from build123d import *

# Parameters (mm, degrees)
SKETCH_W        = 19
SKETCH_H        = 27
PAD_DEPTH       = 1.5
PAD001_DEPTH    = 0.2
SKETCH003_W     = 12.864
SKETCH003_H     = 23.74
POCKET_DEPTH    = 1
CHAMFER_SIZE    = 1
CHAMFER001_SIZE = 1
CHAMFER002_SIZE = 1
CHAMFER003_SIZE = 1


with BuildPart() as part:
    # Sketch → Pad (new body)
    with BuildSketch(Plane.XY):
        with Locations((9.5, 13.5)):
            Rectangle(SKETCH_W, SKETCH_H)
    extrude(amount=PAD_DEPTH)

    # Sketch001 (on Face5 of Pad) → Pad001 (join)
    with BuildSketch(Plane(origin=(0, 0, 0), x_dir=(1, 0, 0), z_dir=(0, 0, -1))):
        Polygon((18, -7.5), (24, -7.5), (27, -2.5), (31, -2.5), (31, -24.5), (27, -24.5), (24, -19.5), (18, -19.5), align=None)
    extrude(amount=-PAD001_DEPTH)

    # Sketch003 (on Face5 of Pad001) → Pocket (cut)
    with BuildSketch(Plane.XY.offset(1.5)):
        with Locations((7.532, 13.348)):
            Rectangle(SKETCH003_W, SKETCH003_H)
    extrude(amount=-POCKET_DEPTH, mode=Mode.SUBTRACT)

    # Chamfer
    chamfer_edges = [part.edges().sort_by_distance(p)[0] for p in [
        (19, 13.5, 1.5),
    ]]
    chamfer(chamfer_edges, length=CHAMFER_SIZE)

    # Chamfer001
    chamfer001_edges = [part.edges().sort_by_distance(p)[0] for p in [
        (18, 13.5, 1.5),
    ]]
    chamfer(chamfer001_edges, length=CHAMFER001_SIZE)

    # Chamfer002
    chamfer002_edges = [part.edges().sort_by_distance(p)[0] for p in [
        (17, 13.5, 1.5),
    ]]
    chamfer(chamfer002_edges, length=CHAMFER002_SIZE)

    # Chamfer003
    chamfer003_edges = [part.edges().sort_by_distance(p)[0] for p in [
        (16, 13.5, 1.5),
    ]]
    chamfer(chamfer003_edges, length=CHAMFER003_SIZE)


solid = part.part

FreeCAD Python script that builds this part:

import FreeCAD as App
import Part
import Sketcher


def edges_at(feature, points):
    """Names of the edges that pass closest to the given points."""
    edges = feature.Shape.Edges
    near = lambda p: min(range(len(edges)), key=lambda i: edges[i].distToShape(Part.Vertex(*p))[0])
    return sorted({f"Edge{near(p) + 1}" for p in points})

doc = App.newDocument("Part")
params = doc.addObject("Spreadsheet::Sheet", "Params")
for row, (alias, value) in enumerate([
    ("sketch1_width", "19 mm"),
    ("sketch1_height", "27 mm"),
    ("pad1_length", "1.5 mm"),
    ("sketch2_width", "6 mm"),
    ("sketch2_width2", "4 mm"),
    ("sketch2_height", "12 mm"),
    ("sketch2_height2", "22 mm"),
    ("pad2_length", "0.2 mm"),
    ("sketch3_height", "23.74 mm"),
    ("pocket1_length", "1 mm"),
    ("chamfer_size", "1 mm"),
    ("chamfer2_size", "1 mm"),
    ("chamfer3_size", "1 mm"),
    ("chamfer4_size", "1 mm"),
], start=1):
    params.set(f"A{row}", alias)
    params.set(f"B{row}", "=" + value)
    params.setAlias(f"B{row}", alias)

body = doc.addObject("PartDesign::Body", "Body")

sketch1 = body.newObject("Sketcher::SketchObject", "Sketch")
sketch1.AttachmentSupport = (doc.getObject("XY_Plane"), [""])
sketch1.MapMode = "FlatFace"
sketch1.addGeometry([
    Part.LineSegment(App.Vector(0, 27, 0), App.Vector(0, 0, 0)),
    Part.LineSegment(App.Vector(0, 0, 0), App.Vector(19, 0, 0)),
    Part.LineSegment(App.Vector(19, 0, 0), App.Vector(19, 27, 0)),
    Part.LineSegment(App.Vector(19, 27, 0), App.Vector(0, 27, 0)),
], False)
sketch1.addConstraint([
    Sketcher.Constraint("Coincident", 0, 2, 1, 1),
    Sketcher.Constraint("Coincident", 1, 2, 2, 1),
    Sketcher.Constraint("Coincident", 2, 2, 3, 1),
    Sketcher.Constraint("Coincident", 3, 2, 0, 1),
    Sketcher.Constraint("Vertical", 0),
    Sketcher.Constraint("Horizontal", 1),
    Sketcher.Constraint("Vertical", 2),
    Sketcher.Constraint("Horizontal", 3),
    Sketcher.Constraint("Coincident", 0, 2, -1, 1),
    Sketcher.Constraint("DistanceX", 1, 1, 1, 2, 19.0),
    Sketcher.Constraint("DistanceY", 0, 2, 0, 1, 27.0),
])
sketch1.setExpression("Constraints[9]", "Params.sketch1_width")
sketch1.setExpression("Constraints[10]", "Params.sketch1_height")
pad1 = body.newObject("PartDesign::Pad", "Pad")
pad1.Profile = sketch1
pad1.setExpression("Length", "Params.pad1_length")

sketch2 = body.newObject("Sketcher::SketchObject", "Sketch001")
sketch2.AttachmentSupport = (doc.getObject("XY_Plane"), [""])
sketch2.MapMode = "FlatFace"
sketch2.addGeometry([
    Part.LineSegment(App.Vector(24, 7.5, 0), App.Vector(18, 7.5, 0)),
    Part.LineSegment(App.Vector(18, 7.5, 0), App.Vector(18, 19.5, 0)),
    Part.LineSegment(App.Vector(18, 19.5, 0), App.Vector(24, 19.5, 0)),
    Part.LineSegment(App.Vector(24, 19.5, 0), App.Vector(27, 24.5, 0)),
    Part.LineSegment(App.Vector(27, 24.5, 0), App.Vector(31, 24.5, 0)),
    Part.LineSegment(App.Vector(31, 24.5, 0), App.Vector(31, 2.5, 0)),
    Part.LineSegment(App.Vector(31, 2.5, 0), App.Vector(27, 2.5, 0)),
    Part.LineSegment(App.Vector(27, 2.5, 0), App.Vector(24, 7.5, 0)),
], False)
sketch2.addConstraint([
    Sketcher.Constraint("Coincident", 0, 2, 1, 1),
    Sketcher.Constraint("Coincident", 1, 2, 2, 1),
    Sketcher.Constraint("Coincident", 2, 2, 3, 1),
    Sketcher.Constraint("Coincident", 3, 2, 4, 1),
    Sketcher.Constraint("Coincident", 4, 2, 5, 1),
    Sketcher.Constraint("Coincident", 5, 2, 6, 1),
    Sketcher.Constraint("Coincident", 6, 2, 7, 1),
    Sketcher.Constraint("Coincident", 7, 2, 0, 1),
    Sketcher.Constraint("Horizontal", 0),
    Sketcher.Constraint("Vertical", 1),
    Sketcher.Constraint("Horizontal", 2),
    Sketcher.Constraint("Horizontal", 4),
    Sketcher.Constraint("Vertical", 5),
    Sketcher.Constraint("Horizontal", 6),
    Sketcher.Constraint("Vertical", 3, 2, 6, 2),
    Sketcher.Constraint("Vertical", 2, 2, 7, 2),
    Sketcher.Constraint("Equal", 3, 7),
    Sketcher.Constraint("DistanceX", 0, 2, 0, 1, 6.0),
    Sketcher.Constraint("DistanceX", 4, 1, 4, 2, 4.0),
    Sketcher.Constraint("DistanceY", 1, 1, 1, 2, 12.0),
    Sketcher.Constraint("DistanceY", 5, 2, 5, 1, 22.0),
    Sketcher.Constraint("DistanceX", -1, 1, 0, 2, 18.0),
    Sketcher.Constraint("DistanceX", -1, 1, 3, 2, 27.0),
    Sketcher.Constraint("DistanceY", -1, 1, 0, 2, 7.5),
])
sketch2.setExpression("Constraints[17]", "Params.sketch2_width")
sketch2.setExpression("Constraints[18]", "Params.sketch2_width2")
sketch2.setExpression("Constraints[19]", "Params.sketch2_height")
sketch2.setExpression("Constraints[20]", "Params.sketch2_height2")
pad2 = body.newObject("PartDesign::Pad", "Pad001")
pad2.Profile = sketch2
pad2.setExpression("Length", "Params.pad2_length")

sketch3 = body.newObject("Sketcher::SketchObject", "Sketch002")
sketch3.AttachmentSupport = (doc.getObject("XY_Plane"), [""])
sketch3.MapMode = "FlatFace"
sketch3.AttachmentOffset = App.Placement(App.Vector(0, 0, 1.5), App.Rotation())
sketch3.addGeometry([
    Part.LineSegment(App.Vector(1, 25, 0), App.Vector(1, 1, 0)),
    Part.LineSegment(App.Vector(1, 1, 0), App.Vector(14, 1, 0)),
    Part.LineSegment(App.Vector(14, 1, 0), App.Vector(14, 25, 0)),
    Part.LineSegment(App.Vector(14, 25, 0), App.Vector(1, 25, 0)),
], False)
sketch3.addConstraint([
    Sketcher.Constraint("Coincident", 0, 2, 1, 1),
    Sketcher.Constraint("Coincident", 1, 2, 2, 1),
    Sketcher.Constraint("Coincident", 2, 2, 3, 1),
    Sketcher.Constraint("Coincident", 3, 2, 0, 1),
    Sketcher.Constraint("Vertical", 0),
    Sketcher.Constraint("Horizontal", 1),
    Sketcher.Constraint("Vertical", 2),
    Sketcher.Constraint("Horizontal", 3),
    Sketcher.Constraint("DistanceY", 0, 2, 0, 1, 23.74),
    Sketcher.Constraint("DistanceX", -1, 1, 0, 2, 1.1),
    Sketcher.Constraint("DistanceX", 1, 1, 1, 2, 12.864),
    Sketcher.Constraint("DistanceY", -1, 1, 0, 2, 1.478),
])
sketch3.setExpression("Constraints[8]", "Params.sketch3_height")
pocket1 = body.newObject("PartDesign::Pocket", "Pocket")
pocket1.Profile = sketch3
pocket1.setExpression("Length", "Params.pocket1_length")
doc.recompute()

chamfer = body.newObject("PartDesign::Chamfer", "Chamfer")
chamfer.Base = (pocket1, edges_at(pocket1, [(19, 13.5, 1.5)]))
chamfer.setExpression("Size", "Params.chamfer_size")
doc.recompute()

chamfer2 = body.newObject("PartDesign::Chamfer", "Chamfer001")
chamfer2.Base = (chamfer, edges_at(chamfer, [(18, 13.5, 1.5)]))
chamfer2.setExpression("Size", "Params.chamfer2_size")
doc.recompute()

chamfer3 = body.newObject("PartDesign::Chamfer", "Chamfer002")
chamfer3.Base = (chamfer2, edges_at(chamfer2, [(17, 13.5, 1.5)]))
chamfer3.setExpression("Size", "Params.chamfer3_size")
doc.recompute()

chamfer4 = body.newObject("PartDesign::Chamfer", "Chamfer003")
chamfer4.Base = (chamfer3, edges_at(chamfer3, [(16, 13.5, 1.5)]))
chamfer4.setExpression("Size", "Params.chamfer4_size")

doc.recompute()
